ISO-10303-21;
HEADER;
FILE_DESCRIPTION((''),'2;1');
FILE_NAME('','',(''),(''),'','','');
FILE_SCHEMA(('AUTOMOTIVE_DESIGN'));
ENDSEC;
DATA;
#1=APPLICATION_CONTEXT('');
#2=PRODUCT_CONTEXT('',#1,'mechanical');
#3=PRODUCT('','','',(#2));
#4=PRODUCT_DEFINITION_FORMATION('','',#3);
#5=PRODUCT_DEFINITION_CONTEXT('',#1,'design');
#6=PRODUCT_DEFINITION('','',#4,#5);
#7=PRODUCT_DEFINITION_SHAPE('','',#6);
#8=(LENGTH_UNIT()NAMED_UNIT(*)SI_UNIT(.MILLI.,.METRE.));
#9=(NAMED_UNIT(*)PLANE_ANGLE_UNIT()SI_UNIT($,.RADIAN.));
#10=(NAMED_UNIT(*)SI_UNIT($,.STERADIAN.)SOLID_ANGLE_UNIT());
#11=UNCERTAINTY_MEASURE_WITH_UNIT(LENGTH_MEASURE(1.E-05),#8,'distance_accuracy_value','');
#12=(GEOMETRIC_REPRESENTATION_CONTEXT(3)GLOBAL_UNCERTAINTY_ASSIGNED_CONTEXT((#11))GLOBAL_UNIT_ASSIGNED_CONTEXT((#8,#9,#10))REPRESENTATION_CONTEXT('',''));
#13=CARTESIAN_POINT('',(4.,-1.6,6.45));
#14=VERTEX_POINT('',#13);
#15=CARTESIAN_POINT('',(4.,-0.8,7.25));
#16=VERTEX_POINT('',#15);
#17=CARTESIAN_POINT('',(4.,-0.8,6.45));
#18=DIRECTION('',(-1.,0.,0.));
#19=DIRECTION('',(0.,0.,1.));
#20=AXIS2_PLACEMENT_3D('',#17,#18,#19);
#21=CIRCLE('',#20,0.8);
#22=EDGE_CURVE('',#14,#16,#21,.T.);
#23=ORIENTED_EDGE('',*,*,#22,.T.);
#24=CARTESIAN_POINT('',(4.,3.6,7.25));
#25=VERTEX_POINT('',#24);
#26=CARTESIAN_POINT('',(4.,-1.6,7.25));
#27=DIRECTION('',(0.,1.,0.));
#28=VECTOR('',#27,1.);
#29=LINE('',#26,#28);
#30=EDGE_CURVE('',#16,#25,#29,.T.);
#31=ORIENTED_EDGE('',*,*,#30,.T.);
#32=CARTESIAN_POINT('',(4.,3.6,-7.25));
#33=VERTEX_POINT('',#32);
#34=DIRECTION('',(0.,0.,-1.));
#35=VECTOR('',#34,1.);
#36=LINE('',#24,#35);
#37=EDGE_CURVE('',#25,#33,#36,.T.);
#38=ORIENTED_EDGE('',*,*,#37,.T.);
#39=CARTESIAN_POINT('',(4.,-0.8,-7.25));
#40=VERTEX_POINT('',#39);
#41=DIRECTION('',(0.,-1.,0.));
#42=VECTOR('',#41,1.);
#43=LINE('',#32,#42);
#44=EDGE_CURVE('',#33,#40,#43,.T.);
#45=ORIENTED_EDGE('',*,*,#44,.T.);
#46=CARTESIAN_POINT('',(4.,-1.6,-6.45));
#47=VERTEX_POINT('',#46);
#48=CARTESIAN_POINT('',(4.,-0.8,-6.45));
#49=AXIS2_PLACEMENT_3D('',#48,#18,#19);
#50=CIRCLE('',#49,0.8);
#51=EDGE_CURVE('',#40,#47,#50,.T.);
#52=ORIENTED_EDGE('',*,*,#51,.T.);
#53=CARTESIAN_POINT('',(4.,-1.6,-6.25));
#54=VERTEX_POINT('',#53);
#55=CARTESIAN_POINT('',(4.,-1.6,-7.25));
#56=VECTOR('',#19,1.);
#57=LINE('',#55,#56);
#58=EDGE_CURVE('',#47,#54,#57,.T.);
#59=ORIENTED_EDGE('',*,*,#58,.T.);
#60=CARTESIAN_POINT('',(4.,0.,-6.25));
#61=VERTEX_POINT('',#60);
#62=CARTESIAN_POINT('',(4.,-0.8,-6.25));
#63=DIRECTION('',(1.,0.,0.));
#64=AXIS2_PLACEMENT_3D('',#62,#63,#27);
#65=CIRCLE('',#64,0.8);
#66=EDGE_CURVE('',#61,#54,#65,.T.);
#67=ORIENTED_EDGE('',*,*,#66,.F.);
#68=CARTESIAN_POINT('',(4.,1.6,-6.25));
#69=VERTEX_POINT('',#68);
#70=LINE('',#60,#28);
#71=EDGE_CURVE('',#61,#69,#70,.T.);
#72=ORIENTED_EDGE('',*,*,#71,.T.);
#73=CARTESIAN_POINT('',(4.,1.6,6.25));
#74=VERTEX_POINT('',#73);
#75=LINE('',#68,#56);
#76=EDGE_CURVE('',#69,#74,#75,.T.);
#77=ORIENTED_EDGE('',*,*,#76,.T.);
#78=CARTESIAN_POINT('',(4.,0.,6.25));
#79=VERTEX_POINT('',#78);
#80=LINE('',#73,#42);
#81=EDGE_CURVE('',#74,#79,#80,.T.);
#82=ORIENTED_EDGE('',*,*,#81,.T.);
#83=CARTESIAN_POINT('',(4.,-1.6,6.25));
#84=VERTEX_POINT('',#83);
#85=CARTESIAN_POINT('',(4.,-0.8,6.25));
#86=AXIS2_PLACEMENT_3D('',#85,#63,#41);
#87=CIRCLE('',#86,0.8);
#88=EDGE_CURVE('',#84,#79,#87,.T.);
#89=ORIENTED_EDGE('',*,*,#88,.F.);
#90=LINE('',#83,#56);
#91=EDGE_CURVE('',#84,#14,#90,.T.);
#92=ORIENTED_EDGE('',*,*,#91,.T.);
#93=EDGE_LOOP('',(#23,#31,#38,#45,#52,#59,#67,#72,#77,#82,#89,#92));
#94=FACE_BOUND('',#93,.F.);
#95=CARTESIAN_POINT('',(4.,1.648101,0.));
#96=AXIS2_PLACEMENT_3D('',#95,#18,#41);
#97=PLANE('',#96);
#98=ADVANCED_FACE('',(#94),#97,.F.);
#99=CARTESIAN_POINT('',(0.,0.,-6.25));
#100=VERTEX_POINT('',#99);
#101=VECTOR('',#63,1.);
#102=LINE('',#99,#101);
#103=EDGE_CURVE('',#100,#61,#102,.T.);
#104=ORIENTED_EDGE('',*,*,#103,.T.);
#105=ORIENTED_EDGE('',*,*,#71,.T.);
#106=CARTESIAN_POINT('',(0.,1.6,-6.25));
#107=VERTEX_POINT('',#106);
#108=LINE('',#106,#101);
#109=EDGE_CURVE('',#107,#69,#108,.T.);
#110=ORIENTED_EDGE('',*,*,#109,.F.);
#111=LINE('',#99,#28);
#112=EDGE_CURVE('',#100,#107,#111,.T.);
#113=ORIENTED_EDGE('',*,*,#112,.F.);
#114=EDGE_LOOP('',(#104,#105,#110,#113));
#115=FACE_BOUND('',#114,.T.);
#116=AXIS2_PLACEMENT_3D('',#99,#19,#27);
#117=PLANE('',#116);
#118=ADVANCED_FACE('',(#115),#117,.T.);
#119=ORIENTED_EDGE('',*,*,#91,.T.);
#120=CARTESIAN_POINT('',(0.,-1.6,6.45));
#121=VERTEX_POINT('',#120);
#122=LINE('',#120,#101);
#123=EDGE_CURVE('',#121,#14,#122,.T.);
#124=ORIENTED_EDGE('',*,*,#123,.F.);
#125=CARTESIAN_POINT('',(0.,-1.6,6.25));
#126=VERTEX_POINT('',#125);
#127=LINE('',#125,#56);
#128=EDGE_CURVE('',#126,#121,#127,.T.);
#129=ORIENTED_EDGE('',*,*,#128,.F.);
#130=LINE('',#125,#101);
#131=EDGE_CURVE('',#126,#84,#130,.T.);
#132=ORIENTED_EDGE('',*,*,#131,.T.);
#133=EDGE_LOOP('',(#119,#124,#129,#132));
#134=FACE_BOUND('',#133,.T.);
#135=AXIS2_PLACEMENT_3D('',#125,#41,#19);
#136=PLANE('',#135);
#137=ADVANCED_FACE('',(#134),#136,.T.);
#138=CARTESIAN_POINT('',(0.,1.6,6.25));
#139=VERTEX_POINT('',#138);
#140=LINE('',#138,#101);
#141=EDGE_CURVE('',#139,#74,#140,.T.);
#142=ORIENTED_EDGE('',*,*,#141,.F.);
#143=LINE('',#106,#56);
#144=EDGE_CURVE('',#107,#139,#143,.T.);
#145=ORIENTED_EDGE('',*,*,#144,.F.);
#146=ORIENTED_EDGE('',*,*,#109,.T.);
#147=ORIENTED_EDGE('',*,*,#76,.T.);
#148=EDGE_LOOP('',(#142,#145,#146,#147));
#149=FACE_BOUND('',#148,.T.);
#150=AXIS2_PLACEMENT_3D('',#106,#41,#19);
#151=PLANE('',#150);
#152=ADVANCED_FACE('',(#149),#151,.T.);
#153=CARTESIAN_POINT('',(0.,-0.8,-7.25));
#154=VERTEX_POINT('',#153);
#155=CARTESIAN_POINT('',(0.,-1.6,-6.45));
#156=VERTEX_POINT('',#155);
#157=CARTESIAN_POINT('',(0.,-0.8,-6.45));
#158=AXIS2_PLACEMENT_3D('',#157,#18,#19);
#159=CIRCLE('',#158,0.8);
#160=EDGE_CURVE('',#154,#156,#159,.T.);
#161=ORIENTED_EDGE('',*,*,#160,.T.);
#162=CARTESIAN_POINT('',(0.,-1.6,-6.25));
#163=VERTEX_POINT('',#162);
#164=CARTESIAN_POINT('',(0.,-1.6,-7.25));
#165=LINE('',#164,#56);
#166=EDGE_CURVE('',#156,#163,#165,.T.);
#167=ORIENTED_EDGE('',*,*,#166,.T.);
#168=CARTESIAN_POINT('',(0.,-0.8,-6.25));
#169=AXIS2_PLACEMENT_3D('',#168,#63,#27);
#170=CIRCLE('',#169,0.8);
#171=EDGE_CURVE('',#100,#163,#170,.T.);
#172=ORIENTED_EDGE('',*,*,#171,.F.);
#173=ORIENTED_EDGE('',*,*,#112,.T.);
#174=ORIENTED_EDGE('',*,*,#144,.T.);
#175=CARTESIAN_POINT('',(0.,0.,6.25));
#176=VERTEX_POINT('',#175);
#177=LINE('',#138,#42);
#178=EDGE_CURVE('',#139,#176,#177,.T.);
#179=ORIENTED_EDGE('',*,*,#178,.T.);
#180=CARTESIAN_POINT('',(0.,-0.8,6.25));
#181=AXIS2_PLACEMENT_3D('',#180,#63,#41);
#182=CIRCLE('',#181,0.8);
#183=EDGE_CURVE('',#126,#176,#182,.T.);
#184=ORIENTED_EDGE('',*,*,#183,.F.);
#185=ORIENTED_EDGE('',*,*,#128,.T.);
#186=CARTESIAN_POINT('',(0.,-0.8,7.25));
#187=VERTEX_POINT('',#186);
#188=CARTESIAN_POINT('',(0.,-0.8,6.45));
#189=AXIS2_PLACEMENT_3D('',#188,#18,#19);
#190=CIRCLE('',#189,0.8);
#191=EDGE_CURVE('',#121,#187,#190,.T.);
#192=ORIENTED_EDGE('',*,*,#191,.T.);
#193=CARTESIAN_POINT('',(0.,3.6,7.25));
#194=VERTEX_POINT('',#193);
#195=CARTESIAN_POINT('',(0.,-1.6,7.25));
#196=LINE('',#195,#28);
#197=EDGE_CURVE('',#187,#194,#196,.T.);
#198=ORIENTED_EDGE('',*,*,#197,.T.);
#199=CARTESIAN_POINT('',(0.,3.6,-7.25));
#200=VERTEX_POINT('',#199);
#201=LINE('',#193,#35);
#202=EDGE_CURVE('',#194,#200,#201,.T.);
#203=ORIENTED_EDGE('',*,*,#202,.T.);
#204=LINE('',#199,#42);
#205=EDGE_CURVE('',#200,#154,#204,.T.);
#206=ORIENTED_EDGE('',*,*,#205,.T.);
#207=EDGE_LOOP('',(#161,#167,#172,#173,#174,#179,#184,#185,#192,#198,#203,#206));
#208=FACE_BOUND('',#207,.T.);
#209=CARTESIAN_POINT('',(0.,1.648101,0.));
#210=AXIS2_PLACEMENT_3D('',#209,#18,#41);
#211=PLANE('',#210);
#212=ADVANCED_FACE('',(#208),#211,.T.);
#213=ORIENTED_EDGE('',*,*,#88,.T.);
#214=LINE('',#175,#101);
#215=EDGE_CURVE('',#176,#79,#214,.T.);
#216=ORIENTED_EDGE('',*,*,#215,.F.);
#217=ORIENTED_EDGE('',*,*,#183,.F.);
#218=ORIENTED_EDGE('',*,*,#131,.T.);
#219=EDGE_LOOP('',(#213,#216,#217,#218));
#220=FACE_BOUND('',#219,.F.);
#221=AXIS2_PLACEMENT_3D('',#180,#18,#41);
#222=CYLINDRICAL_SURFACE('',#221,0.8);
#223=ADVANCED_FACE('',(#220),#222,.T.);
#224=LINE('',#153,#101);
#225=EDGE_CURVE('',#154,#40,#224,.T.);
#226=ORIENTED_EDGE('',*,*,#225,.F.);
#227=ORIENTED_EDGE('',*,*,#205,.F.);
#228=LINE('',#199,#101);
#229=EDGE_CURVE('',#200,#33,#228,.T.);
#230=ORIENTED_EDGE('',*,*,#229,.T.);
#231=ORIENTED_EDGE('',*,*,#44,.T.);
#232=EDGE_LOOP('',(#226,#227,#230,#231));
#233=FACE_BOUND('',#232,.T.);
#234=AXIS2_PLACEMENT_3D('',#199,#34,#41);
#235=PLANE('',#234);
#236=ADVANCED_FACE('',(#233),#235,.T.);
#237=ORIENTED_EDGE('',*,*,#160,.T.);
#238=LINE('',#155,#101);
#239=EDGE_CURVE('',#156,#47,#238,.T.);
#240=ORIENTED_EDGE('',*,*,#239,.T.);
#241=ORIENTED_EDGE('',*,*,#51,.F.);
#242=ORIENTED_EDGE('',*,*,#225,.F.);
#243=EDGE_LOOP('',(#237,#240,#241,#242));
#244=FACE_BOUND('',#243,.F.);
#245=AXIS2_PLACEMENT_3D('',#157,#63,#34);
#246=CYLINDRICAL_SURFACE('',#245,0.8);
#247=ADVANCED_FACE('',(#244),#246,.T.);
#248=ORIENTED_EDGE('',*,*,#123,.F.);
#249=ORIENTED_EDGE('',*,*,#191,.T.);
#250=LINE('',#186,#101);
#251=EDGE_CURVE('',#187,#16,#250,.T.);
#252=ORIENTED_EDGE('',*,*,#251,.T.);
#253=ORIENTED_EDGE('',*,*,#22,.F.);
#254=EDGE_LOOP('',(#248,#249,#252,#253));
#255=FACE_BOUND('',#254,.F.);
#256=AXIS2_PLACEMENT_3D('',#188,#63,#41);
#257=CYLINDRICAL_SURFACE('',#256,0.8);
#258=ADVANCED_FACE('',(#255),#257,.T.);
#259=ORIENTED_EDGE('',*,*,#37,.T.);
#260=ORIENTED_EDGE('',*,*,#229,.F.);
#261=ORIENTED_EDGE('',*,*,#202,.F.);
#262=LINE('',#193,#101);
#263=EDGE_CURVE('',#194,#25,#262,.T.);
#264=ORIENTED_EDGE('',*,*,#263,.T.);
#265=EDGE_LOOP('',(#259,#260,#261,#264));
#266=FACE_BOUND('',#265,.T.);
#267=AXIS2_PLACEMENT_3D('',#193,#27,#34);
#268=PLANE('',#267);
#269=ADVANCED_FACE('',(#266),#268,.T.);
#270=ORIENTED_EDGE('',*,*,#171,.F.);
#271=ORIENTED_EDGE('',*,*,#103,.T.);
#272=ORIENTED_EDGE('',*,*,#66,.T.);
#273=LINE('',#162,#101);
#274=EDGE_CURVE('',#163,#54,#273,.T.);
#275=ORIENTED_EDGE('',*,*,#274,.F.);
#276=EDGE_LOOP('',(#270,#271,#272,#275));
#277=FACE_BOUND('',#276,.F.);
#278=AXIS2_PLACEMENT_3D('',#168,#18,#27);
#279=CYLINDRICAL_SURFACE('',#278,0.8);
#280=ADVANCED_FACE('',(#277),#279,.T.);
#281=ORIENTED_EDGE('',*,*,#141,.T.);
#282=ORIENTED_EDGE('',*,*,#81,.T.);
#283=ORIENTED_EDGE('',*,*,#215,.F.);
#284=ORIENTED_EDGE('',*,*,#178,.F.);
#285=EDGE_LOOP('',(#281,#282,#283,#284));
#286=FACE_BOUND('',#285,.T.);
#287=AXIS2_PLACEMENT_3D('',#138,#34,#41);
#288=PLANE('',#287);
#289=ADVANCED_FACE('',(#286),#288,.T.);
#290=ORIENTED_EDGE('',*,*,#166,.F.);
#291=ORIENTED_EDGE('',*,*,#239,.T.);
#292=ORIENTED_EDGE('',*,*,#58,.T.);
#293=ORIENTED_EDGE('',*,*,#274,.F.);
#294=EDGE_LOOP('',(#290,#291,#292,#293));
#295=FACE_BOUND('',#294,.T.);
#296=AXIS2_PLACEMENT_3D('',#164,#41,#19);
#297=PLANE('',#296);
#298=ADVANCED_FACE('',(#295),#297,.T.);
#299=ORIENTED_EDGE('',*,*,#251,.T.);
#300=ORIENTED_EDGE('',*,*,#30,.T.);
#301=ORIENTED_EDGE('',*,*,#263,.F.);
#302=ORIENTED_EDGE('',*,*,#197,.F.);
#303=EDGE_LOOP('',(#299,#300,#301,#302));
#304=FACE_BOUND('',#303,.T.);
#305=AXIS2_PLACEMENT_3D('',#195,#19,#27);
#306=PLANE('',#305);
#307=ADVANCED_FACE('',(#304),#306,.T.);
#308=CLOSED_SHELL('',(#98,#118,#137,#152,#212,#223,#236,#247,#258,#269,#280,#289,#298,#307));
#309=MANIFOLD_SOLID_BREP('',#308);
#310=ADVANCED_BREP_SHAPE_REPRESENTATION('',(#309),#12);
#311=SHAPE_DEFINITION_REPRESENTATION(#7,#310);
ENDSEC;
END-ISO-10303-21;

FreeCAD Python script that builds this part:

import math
import FreeCAD as App
import Part
import Sketcher
from FreeCAD import Vector


def edges_at(feature, points):
    """Names of the edges that pass closest to the given points."""
    edges = feature.Shape.Edges
    near = lambda p: min(range(len(edges)), key=lambda i: edges[i].distToShape(Part.Vertex(*p))[0])
    return sorted({f"Edge{near(p) + 1}" for p in points})

doc = App.newDocument("Part")
body = doc.addObject("PartDesign::Body", "Body")

# Sketch on YZ plane
sketch1 = doc.addObject("Sketcher::SketchObject", "Sketch")
body.addObject(sketch1)
sketch1.AttachmentSupport = (doc.YZ_Plane, [""])
sketch1.MapMode = "FlatFace"
sketch1.addGeometry([
    Part.LineSegment(Vector(0, 6.2, 0), Vector(1.6, 6.2, 0)),  # 0
    Part.LineSegment(Vector(1.6, 6.2, 0), Vector(1.6, -6.2, 0)),  # 1
    Part.LineSegment(Vector(1.6, -6.2, 0), Vector(0, -6.2, 0)),  # 2
    Part.ArcOfCircle(Part.Circle(Vector(-0.8, -6.2, 0), Vector(0, 0, 1), 0.8), math.radians(0), math.radians(180)),  # 3
    Part.LineSegment(Vector(-1.6, -6.2, 0), Vector(-1.6, -7.2, 0)),  # 4
    Part.LineSegment(Vector(-1.6, -7.2, 0), Vector(3.6, -7.2, 0)),  # 5
    Part.LineSegment(Vector(3.6, -7.2, 0), Vector(3.6, 7.2, 0)),  # 6
    Part.LineSegment(Vector(3.6, 7.2, 0), Vector(-1.6, 7.2, 0)),  # 7
    Part.LineSegment(Vector(-1.6, 7.2, 0), Vector(-1.6, 6.2, 0)),  # 8
    Part.ArcOfCircle(Part.Circle(Vector(-0.8, 6.2, 0), Vector(0, 0, 1), 0.8), math.radians(180), math.radians(360)),  # 9
], False)
sketch1.addConstraint([
    Sketcher.Constraint("Coincident", 0, 2, 1, 1),
    Sketcher.Constraint("Coincident", 1, 2, 2, 1),
    Sketcher.Constraint("Coincident", 2, 2, 3, 1),
    Sketcher.Constraint("Tangent", 3, 2, 4, 1),
    Sketcher.Constraint("Coincident", 4, 2, 5, 1),
    Sketcher.Constraint("Coincident", 5, 2, 6, 1),
    Sketcher.Constraint("Coincident", 6, 2, 7, 1),
    Sketcher.Constraint("Coincident", 7, 2, 8, 1),
    Sketcher.Constraint("Tangent", 8, 2, 9, 1),
    Sketcher.Constraint("Coincident", 9, 2, 0, 1),
    Sketcher.Constraint("Horizontal", 0),
    Sketcher.Constraint("Vertical", 1),
    Sketcher.Constraint("Horizontal", 2),
    Sketcher.Constraint("Vertical", 4),
    Sketcher.Constraint("Horizontal", 5),
    Sketcher.Constraint("Vertical", 6),
    Sketcher.Constraint("Horizontal", 7),
    Sketcher.Constraint("Vertical", 8),
    Sketcher.Constraint("Equal", 3, 9),
    Sketcher.Constraint("Symmetric", 0, 2, 3, 2, -1, 1),
    Sketcher.Constraint("Symmetric", 1, 2, 8, 2, -1, 1),
    Sketcher.Constraint("Symmetric", 2, 2, 9, 2, -1, 1),
    Sketcher.Constraint("Equal", 4, 8),
    Sketcher.Constraint("Radius", 3, 0.8),
    Sketcher.Constraint("DistanceY", 4, 2, 4, 1, 1.0),
    Sketcher.Constraint("DistanceX", 5, 1, 5, 2, 5.2),
    Sketcher.Constraint("DistanceY", 1, 2, 1, 1, 12.5),
])
pad1 = doc.addObject("PartDesign::Pad", "Pad")
body.addObject(pad1)
pad1.Profile = sketch1
pad1.Length = 4
doc.recompute()

fillet = doc.addObject("PartDesign::Fillet", "Fillet")
body.addObject(fillet)
fillet.Base = (pad1, edges_at(pad1, [(2, -1.6, 7.25), (2, -1.6, -7.25)]))
fillet.Radius = 0.8

doc.recompute()
